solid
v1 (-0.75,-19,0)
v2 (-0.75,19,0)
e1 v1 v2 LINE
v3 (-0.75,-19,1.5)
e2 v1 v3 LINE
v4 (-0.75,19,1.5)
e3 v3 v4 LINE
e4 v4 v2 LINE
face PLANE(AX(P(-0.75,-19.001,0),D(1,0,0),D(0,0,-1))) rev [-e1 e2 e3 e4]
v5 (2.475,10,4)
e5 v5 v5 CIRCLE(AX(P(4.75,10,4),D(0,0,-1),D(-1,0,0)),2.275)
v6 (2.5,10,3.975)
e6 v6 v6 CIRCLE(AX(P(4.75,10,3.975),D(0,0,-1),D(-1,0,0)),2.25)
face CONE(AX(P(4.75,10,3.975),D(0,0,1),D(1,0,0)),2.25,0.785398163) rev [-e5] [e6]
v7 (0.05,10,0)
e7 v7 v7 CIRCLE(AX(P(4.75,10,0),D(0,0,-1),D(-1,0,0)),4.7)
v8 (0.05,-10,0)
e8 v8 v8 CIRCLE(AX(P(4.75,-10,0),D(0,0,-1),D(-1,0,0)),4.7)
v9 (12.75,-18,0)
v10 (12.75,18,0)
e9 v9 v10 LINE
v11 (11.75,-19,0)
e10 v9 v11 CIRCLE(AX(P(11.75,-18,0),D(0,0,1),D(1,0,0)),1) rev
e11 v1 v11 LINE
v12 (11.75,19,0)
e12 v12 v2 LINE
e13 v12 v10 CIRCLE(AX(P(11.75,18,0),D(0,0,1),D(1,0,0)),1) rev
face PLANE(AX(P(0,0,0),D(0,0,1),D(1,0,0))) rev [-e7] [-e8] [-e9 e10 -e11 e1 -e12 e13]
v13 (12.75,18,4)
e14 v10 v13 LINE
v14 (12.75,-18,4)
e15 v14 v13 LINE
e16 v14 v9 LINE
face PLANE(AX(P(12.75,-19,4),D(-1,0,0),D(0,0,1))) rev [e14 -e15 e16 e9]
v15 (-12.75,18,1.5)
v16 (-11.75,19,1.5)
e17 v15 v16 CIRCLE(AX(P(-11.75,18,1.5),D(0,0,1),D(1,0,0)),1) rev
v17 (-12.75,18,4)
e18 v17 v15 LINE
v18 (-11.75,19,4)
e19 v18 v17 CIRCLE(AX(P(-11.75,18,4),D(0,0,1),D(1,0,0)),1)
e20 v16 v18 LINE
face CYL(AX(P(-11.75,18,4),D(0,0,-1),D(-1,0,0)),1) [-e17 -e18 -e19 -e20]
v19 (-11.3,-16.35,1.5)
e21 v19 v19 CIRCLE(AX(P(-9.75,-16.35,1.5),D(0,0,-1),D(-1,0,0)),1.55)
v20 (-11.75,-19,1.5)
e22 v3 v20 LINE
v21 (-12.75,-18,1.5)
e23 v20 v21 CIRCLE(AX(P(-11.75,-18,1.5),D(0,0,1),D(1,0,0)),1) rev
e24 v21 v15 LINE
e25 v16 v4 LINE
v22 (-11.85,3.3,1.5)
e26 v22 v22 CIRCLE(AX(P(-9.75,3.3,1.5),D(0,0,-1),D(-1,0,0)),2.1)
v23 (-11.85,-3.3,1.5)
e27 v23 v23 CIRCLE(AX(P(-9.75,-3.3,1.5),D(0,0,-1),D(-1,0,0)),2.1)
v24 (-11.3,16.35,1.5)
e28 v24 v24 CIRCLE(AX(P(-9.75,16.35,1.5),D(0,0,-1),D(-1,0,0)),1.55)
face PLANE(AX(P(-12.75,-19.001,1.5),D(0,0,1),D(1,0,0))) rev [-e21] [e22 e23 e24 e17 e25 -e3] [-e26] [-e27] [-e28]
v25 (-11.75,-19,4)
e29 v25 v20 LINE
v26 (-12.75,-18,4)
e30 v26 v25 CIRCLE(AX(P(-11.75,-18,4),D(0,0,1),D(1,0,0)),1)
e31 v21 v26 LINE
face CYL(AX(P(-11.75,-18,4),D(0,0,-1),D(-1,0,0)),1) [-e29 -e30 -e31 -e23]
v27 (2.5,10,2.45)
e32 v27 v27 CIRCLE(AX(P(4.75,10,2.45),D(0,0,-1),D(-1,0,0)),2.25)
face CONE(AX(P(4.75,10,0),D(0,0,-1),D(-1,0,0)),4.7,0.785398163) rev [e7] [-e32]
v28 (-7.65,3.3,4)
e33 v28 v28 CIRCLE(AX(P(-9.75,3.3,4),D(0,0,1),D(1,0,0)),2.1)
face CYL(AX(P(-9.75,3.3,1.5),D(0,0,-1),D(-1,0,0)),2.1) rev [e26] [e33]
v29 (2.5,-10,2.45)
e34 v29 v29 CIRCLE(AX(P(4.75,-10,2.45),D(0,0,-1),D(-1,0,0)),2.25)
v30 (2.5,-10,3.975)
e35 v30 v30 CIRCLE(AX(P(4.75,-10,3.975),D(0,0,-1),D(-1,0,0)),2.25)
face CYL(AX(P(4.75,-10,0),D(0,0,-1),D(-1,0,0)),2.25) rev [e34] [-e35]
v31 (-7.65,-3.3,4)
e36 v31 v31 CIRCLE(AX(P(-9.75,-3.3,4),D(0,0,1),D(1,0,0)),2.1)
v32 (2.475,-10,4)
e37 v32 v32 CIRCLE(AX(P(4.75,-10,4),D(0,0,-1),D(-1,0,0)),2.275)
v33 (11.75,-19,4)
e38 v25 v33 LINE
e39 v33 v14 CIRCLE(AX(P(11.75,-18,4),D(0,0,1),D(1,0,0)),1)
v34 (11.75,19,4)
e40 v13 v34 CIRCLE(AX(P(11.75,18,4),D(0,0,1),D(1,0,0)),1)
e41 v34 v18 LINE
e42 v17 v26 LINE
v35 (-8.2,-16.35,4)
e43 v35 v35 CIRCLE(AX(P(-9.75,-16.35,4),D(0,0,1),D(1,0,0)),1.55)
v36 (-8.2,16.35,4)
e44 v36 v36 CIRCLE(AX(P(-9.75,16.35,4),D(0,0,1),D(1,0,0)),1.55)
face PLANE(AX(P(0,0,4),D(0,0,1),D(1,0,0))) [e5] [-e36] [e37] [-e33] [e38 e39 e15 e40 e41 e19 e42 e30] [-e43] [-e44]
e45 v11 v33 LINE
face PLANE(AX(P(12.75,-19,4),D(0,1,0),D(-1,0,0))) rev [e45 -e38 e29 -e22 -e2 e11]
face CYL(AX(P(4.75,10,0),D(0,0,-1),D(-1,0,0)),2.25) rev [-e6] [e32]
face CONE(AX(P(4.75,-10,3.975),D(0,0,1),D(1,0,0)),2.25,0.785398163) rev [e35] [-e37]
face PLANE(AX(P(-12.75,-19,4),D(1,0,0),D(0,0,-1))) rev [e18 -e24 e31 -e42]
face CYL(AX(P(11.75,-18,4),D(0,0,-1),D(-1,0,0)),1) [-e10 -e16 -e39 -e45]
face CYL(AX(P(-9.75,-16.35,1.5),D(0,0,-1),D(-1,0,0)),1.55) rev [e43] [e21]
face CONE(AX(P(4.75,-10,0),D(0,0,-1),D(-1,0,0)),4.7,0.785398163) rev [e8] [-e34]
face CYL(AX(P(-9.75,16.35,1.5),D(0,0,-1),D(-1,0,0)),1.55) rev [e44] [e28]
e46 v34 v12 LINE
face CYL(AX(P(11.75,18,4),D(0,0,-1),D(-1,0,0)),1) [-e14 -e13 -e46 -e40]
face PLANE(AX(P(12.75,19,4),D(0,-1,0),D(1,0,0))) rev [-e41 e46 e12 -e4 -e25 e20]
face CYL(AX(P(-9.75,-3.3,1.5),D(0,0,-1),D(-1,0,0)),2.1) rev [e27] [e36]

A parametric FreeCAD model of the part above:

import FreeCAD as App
import Part
import Sketcher
Q = App.Units.Quantity


def edges_at(feature, points):
    """Names of the edges that pass closest to the given points."""
    edges = feature.Shape.Edges
    near = lambda p: min(range(len(edges)), key=lambda i: edges[i].distToShape(Part.Vertex(*p))[0])
    return sorted({f"Edge{near(p) + 1}" for p in points})


def add_polygon(sketch, points):
    """Adds a closed chain of lines whose ends are joined by coincident constraints."""
    first, n = sketch.GeometryCount, len(points)
    for a, b in zip(points, points[1:] + points[:1]):
        sketch.addGeometry(Part.LineSegment(App.Vector(*a, 0), App.Vector(*b, 0)), False)
    for i in range(n):
        sketch.addConstraint(Sketcher.Constraint("Coincident", first + i, 2, first + (i + 1) % n, 1))

doc = App.newDocument("Part")
params = doc.addObject("Spreadsheet::Sheet", "Params")
for row, (alias, value) in enumerate([
    ("sketch1_height", "38 mm"),
    ("sketch1_width", "25.5 mm"),
    ("pad1_length", "4 mm"),
    ("sketch2_width", "12 mm"),
    ("sketch2_height", "1.5 mm"),
    ("sketch3_height", "4 mm"),
    ("sketch3_width", "4.7 mm"),
    ("groove_angle", "360 deg"),
    ("linearpattern_pitch", "20 mm"),
    ("sketch4_diameter", "3.1 mm"),
    ("hole_diameter", "3.1 mm"),
    ("sketch5_diameter", "4.2 mm"),
    ("hole2_diameter", "4.2 mm"),
    ("fillet_radius", "1 mm"),
], start=1):
    params.set(f"A{row}", alias)
    params.set(f"B{row}", "=" + value)
    params.setAlias(f"B{row}", alias)

body = doc.addObject("PartDesign::Body", "Body")

# Sketch on XY plane
sketch1 = doc.addObject("Sketcher::SketchObject", "Sketch")
body.addObject(sketch1)
sketch1.AttachmentSupport = (doc.XY_Plane, [""])
sketch1.MapMode = "FlatFace"
add_polygon(sketch1, [(-13, 19), (-13, -19), (13, -19), (13, 19)])  # lines 0-3
sketch1.addConstraint(Sketcher.Constraint("Vertical", 0))
sketch1.addConstraint(Sketcher.Constraint("Horizontal", 1))
sketch1.addConstraint(Sketcher.Constraint("Vertical", 2))
sketch1.addConstraint(Sketcher.Constraint("Horizontal", 3))
sketch1.addConstraint(Sketcher.Constraint("Symmetric", 0, 2, 2, 2, -1, 1))
sketch1.addConstraint(Sketcher.Constraint("DistanceY", 0, 2, 0, 1, Q("38 mm")))
sketch1.addConstraint(Sketcher.Constraint("DistanceX", 1, 1, 1, 2, Q("25.5 mm")))
sketch1.setExpression("Constraints[9]", "Params.sketch1_height")
sketch1.setExpression("Constraints[10]", "Params.sketch1_width")
pad1 = doc.addObject("PartDesign::Pad", "Pad")
body.addObject(pad1)
pad1.Profile = sketch1
pad1.setExpression("Length", "Params.pad1_length")

# Sketch on XZ plane
sketch2 = doc.addObject("Sketcher::SketchObject", "Sketch001")
body.addObject(sketch2)
sketch2.AttachmentSupport = (doc.XZ_Plane, [""])
sketch2.MapMode = "FlatFace"
sketch2.AttachmentOffset = App.Placement(App.Vector(0, 0, -19), App.Rotation())
add_polygon(sketch2, [(-12.8, 0), (-12.8, 1.5), (-0.8, 1.5), (-0.8, 0)])  # lines 0-3
sketch2.addConstraint(Sketcher.Constraint("Vertical", 0))
sketch2.addConstraint(Sketcher.Constraint("Horizontal", 1))
sketch2.addConstraint(Sketcher.Constraint("Vertical", 2))
sketch2.addConstraint(Sketcher.Constraint("Horizontal", 3))
sketch2.addConstraint(Sketcher.Constraint("PointOnObject", 2, 2, -1))
sketch2.addConstraint(Sketcher.Constraint("DistanceX", 1, 1, 1, 2, Q("12 mm")))
sketch2.addConstraint(Sketcher.Constraint("DistanceY", 0, 1, 0, 2, Q("1.5 mm")))
sketch2.addConstraint(Sketcher.Constraint("DistanceX", 0, 2, -1, 1, Q("12.75 mm")))
sketch2.setExpression("Constraints[9]", "Params.sketch2_width")
sketch2.setExpression("Constraints[10]", "Params.sketch2_height")
pocket1 = doc.addObject("PartDesign::Pocket", "Pocket")
body.addObject(pocket1)
pocket1.Profile = sketch2
pocket1.Type = "UpToFirst"
pocket1.Reversed = True

# Sketch on YZ plane
sketch3 = doc.addObject("Sketcher::SketchObject", "Sketch002")
body.addObject(sketch3)
sketch3.AttachmentSupport = (doc.YZ_Plane, [""])
sketch3.MapMode = "FlatFace"
sketch3.AttachmentOffset = App.Placement(App.Vector(0, 0, 4.75), App.Rotation())
add_polygon(sketch3, [(10, 4), (10, 0), (14.7, 0), (12.25, 2.45), (12.25, 3.975), (12.275, 4)])  # lines 0-5
sketch3.addGeometry(Part.LineSegment(App.Vector(10, 0, 0), App.Vector(10, 4, 0)), True)  # axis
sketch3.addConstraint(Sketcher.Constraint("Vertical", 0))
sketch3.addConstraint(Sketcher.Constraint("Horizontal", 1))
sketch3.addConstraint(Sketcher.Constraint("Vertical", 3))
sketch3.addConstraint(Sketcher.Constraint("Horizontal", 5))
sketch3.addConstraint(Sketcher.Constraint("Vertical", 6))
sketch3.addConstraint(Sketcher.Constraint("Coincident", 6, 1, 0, 2))
sketch3.addConstraint(Sketcher.Constraint("PointOnObject", 0, 2, -1))
sketch3.addConstraint(Sketcher.Constraint("Perpendicular", 2, 4))
sketch3.addConstraint(Sketcher.Constraint("Horizontal", 4, 2, 6, 2))
sketch3.addConstraint(Sketcher.Constraint("DistanceY", 0, 2, 0, 1, Q("4 mm")))
sketch3.addConstraint(Sketcher.Constraint("Angle", 2, Q("135 deg")))
sketch3.addConstraint(Sketcher.Constraint("DistanceX", 1, 1, 1, 2, Q("4.7 mm")))
sketch3.addConstraint(Sketcher.Constraint("DistanceX", -1, 1, 0, 2, Q("10 mm")))
sketch3.addConstraint(Sketcher.Constraint("DistanceX", 5, 2, 5, 1, Q("2.275 mm")))
sketch3.addConstraint(Sketcher.Constraint("DistanceY", 3, 1, 3, 2, Q("1.525 mm")))
sketch3.setExpression("Constraints[15]", "Params.sketch3_height")
sketch3.setExpression("Constraints[17]", "Params.sketch3_width")
groove = doc.addObject("PartDesign::Groove", "Groove")
body.addObject(groove)
groove.Profile = sketch3
groove.ReferenceAxis = (sketch3, ["Axis0"])
groove.setExpression("Angle", "Params.groove_angle")
doc.recompute()

linearpattern = doc.addObject("PartDesign::LinearPattern", "LinearPattern")
body.addObject(linearpattern)
linearpattern.Originals = [groove]
linearpattern.Direction = (doc.Y_Axis, [""])
linearpattern.Mode = "offset"
linearpattern.setExpression("Offset", "Params.linearpattern_pitch")
linearpattern.Occurrences = 2
linearpattern.Reversed = True
body.Tip = linearpattern

# Sketch on XY plane
sketch4 = doc.addObject("Sketcher::SketchObject", "Sketch003")
body.addObject(sketch4)
sketch4.AttachmentSupport = (doc.XY_Plane, [""])
sketch4.MapMode = "FlatFace"
sketch4.AttachmentOffset = App.Placement(App.Vector(0, 0, 1.5), App.Rotation())
sketch4.addGeometry(Part.Circle(App.Vector(-9.8, -16.4, 0), App.Vector(0, 0, 1), 1.6), False)
sketch4.addGeometry(Part.Circle(App.Vector(-9.8, 16.4, 0), App.Vector(0, 0, 1), 1.6), False)
sketch4.addConstraint(Sketcher.Constraint("Equal", 0, 1))
sketch4.addConstraint(Sketcher.Constraint("Symmetric", 0, 3, 1, 3, -1))
sketch4.addConstraint(Sketcher.Constraint("Diameter", 0, Q("3.1 mm")))
sketch4.addConstraint(Sketcher.Constraint("DistanceY", 0, 3, 1, 3, Q("32.7 mm")))
sketch4.addConstraint(Sketcher.Constraint("DistanceX", 0, 3, -1, 1, Q("9.75 mm")))
sketch4.setExpression("Constraints[2]", "Params.sketch4_diameter")
doc.recompute()
hole = doc.addObject("PartDesign::Hole", "Hole")
body.addObject(hole)
hole.Profile = sketch4
hole.ThreadType = "None"
hole.setExpression("Diameter", "Params.hole_diameter")
hole.DepthType = "ThroughAll"
hole.Reversed = True

# Sketch on XY plane
sketch5 = doc.addObject("Sketcher::SketchObject", "Sketch004")
body.addObject(sketch5)
sketch5.AttachmentSupport = (doc.XY_Plane, [""])
sketch5.MapMode = "FlatFace"
sketch5.AttachmentOffset = App.Placement(App.Vector(0, 0, 1.5), App.Rotation())
sketch5.addGeometry(Part.Circle(App.Vector(-9.8, -3.3, 0), App.Vector(0, 0, 1), 2.1), False)
sketch5.addGeometry(Part.Circle(App.Vector(-9.8, 3.3, 0), App.Vector(0, 0, 1), 2.1), False)
sketch5.addConstraint(Sketcher.Constraint("Equal", 0, 1))
sketch5.addConstraint(Sketcher.Constraint("Symmetric", 0, 3, 1, 3, -1))
sketch5.addConstraint(Sketcher.Constraint("Diameter", 0, Q("4.2 mm")))
sketch5.addConstraint(Sketcher.Constraint("DistanceY", 0, 3, -1, 1, Q("3.3 mm")))
sketch5.addConstraint(Sketcher.Constraint("DistanceX", 0, 3, -1, 1, Q("9.75 mm")))
sketch5.setExpression("Constraints[2]", "Params.sketch5_diameter")
doc.recompute()
hole2 = doc.addObject("PartDesign::Hole", "Hole001")
body.addObject(hole2)
hole2.Profile = sketch5
hole2.ThreadType = "None"
hole2.setExpression("Diameter", "Params.hole2_diameter")
hole2.DepthType = "ThroughAll"
hole2.Reversed = True
doc.recompute()

fillet = doc.addObject("PartDesign::Fillet", "Fillet")
body.addObject(fillet)
fillet.Base = (hole2, edges_at(hole2, [
    (-12.75, 19, 2.75),
    (12.75, 19, 2),
    (12.75, -19, 2),
    (-12.75, -19, 2.75),
]))
fillet.setExpression("Radius", "Params.fillet_radius")

doc.recompute()
